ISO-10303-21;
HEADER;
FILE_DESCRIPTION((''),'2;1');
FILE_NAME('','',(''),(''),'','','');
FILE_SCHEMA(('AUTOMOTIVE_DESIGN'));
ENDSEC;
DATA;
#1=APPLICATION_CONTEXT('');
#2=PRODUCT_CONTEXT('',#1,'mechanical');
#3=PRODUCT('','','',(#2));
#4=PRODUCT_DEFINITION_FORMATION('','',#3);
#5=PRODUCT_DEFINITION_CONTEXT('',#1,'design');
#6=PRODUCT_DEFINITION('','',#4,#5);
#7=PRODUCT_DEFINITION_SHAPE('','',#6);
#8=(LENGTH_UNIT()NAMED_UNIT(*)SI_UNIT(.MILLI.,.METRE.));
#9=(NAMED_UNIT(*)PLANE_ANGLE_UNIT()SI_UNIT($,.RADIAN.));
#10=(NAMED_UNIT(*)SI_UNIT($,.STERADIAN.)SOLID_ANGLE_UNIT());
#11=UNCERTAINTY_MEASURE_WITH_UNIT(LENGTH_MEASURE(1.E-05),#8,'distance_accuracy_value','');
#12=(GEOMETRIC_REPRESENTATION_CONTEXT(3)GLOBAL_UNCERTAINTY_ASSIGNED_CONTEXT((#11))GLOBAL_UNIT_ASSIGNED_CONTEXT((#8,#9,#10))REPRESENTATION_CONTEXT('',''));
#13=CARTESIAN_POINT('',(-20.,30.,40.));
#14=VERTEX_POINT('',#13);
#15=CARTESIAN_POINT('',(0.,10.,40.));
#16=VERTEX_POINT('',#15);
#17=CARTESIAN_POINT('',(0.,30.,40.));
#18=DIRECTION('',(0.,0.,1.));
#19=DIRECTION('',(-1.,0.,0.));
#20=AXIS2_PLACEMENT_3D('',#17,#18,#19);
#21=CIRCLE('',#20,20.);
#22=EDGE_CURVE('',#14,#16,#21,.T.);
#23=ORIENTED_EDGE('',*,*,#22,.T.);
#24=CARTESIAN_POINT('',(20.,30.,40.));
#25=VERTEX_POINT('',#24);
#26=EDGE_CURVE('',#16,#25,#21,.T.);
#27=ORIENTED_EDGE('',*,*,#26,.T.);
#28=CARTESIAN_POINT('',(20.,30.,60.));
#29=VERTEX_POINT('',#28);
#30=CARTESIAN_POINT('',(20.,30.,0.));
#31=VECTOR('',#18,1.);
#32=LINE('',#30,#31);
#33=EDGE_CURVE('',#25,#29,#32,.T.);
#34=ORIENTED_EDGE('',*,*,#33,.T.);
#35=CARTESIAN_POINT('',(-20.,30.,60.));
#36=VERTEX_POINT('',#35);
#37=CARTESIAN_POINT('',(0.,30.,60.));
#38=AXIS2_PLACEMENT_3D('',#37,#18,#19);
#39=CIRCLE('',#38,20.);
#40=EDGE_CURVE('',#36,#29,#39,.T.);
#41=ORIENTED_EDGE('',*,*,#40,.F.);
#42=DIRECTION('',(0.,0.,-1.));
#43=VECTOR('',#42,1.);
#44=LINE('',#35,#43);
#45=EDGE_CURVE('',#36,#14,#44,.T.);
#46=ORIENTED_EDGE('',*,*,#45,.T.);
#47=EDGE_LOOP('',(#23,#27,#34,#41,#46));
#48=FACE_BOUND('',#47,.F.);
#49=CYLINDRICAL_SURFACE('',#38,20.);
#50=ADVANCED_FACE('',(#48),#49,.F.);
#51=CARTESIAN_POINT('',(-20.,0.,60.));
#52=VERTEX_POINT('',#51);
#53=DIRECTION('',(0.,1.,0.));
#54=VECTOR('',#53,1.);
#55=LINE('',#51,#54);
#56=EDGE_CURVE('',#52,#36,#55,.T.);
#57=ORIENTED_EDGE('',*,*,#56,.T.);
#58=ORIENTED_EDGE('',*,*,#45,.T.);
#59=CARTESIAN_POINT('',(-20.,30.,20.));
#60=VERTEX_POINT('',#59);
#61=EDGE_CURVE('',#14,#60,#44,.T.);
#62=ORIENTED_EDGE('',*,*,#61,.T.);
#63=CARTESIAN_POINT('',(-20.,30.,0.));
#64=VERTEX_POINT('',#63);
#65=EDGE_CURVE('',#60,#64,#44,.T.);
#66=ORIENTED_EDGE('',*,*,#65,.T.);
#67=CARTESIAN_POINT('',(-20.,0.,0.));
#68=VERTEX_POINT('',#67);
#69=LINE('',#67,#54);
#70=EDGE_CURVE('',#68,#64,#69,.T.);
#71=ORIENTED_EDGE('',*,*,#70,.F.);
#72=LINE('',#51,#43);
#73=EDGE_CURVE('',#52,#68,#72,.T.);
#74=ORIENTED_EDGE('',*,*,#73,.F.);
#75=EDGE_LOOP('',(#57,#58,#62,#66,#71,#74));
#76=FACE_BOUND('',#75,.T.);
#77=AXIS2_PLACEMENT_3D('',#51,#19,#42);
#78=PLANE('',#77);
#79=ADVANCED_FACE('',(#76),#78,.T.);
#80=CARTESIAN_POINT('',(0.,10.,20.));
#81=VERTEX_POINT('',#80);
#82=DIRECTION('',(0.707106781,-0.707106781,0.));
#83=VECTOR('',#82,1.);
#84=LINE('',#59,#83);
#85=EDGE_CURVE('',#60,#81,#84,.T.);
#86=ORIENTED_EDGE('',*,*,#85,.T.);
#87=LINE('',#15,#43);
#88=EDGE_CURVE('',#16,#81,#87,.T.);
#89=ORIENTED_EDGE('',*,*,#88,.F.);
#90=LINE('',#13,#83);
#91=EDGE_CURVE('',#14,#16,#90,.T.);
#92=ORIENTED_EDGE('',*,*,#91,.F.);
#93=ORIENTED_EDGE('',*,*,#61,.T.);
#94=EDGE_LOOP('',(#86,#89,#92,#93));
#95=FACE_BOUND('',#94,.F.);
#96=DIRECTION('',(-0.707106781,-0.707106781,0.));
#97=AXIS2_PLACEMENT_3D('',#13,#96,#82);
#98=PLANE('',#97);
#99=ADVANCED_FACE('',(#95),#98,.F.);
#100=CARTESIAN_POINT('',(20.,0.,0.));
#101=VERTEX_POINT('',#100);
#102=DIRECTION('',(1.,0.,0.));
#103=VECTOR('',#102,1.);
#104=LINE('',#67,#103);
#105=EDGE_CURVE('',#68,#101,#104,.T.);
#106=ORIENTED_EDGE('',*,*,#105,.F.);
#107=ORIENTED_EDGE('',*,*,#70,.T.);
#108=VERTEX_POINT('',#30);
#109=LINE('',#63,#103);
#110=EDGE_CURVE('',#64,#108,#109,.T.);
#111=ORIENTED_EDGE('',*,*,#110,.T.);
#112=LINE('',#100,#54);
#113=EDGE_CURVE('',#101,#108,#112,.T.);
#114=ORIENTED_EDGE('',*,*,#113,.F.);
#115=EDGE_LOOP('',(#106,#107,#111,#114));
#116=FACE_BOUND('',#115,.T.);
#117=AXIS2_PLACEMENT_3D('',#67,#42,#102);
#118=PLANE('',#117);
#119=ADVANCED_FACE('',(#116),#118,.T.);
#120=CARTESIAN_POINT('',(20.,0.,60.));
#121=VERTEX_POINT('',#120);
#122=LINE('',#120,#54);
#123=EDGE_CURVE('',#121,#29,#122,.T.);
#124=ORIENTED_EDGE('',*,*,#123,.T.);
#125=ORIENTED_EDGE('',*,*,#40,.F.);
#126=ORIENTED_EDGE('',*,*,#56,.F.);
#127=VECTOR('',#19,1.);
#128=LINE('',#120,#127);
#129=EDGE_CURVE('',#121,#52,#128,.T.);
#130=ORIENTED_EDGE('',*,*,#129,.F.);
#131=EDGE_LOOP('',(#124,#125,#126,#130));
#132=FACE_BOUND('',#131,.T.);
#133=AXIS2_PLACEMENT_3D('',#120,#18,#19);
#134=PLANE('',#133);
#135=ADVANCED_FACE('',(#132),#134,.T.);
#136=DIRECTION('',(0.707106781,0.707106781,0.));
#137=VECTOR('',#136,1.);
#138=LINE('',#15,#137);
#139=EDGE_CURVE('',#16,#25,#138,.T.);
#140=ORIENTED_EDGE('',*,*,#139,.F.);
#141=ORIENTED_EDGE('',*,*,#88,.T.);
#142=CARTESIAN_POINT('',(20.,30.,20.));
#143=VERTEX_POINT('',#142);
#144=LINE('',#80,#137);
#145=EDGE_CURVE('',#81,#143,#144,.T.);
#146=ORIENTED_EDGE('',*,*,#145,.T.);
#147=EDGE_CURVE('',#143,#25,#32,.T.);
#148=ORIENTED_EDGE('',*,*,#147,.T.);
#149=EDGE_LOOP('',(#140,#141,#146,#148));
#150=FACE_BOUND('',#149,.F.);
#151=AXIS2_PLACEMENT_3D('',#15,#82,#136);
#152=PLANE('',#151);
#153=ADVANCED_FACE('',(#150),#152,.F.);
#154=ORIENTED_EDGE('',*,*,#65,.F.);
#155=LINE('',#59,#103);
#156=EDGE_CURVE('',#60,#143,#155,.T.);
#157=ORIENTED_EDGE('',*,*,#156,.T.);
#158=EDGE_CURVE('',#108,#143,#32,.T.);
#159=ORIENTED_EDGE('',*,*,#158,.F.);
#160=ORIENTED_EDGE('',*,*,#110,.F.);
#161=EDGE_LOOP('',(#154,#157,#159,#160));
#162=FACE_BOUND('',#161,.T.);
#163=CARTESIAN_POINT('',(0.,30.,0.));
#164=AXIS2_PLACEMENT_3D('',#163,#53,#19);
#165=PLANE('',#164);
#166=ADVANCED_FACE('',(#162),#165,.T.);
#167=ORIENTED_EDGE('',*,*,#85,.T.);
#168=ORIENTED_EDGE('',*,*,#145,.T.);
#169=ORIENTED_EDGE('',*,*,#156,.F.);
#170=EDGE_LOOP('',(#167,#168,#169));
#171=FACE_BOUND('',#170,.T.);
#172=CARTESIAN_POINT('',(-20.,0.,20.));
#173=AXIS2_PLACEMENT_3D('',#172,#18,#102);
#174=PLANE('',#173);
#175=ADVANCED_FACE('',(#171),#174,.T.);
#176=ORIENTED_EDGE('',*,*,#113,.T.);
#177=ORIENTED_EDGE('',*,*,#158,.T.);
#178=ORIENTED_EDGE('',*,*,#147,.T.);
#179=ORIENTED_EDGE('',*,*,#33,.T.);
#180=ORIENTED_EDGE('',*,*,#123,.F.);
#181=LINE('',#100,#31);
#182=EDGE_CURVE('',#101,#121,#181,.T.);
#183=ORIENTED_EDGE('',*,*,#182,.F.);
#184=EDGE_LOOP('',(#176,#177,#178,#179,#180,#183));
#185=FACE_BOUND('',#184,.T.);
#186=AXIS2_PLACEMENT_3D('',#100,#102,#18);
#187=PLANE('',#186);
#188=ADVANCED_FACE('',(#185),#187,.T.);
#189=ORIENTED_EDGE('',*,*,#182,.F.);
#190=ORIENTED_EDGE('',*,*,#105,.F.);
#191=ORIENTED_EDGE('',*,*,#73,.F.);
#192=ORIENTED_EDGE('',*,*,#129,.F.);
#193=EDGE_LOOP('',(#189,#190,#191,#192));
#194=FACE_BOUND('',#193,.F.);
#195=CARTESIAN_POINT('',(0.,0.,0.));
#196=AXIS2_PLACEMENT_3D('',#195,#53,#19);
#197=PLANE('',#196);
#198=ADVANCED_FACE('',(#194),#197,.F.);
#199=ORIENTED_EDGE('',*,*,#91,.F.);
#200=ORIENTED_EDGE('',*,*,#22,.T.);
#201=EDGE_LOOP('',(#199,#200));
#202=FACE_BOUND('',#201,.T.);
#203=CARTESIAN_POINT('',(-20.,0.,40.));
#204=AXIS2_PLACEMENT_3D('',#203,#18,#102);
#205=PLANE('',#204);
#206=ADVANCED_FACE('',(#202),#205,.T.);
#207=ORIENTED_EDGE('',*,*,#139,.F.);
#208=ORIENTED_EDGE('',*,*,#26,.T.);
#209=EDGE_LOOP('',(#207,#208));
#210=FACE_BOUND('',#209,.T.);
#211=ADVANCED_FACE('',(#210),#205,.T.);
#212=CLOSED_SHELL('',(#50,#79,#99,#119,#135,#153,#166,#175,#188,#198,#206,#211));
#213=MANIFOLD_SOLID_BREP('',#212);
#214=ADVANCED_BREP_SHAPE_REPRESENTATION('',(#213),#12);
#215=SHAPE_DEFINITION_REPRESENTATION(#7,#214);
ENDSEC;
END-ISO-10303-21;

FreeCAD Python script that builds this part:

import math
import FreeCAD as App
import Part
import Sketcher
Q = App.Units.Quantity


def add_polygon(sketch, points):
    """Adds a closed chain of lines whose ends are joined by coincident constraints."""
    first, n = sketch.GeometryCount, len(points)
    for a, b in zip(points, points[1:] + points[:1]):
        sketch.addGeometry(Part.LineSegment(App.Vector(*a, 0), App.Vector(*b, 0)), False)
    for i in range(n):
        sketch.addConstraint(Sketcher.Constraint("Coincident", first + i, 2, first + (i + 1) % n, 1))

doc = App.newDocument("Part")
body = doc.addObject("PartDesign::Body", "Body")

# Sketch on XZ plane
sketch1 = body.newObject("Sketcher::SketchObject", "Sketch")
sketch1.AttachmentSupport = (doc.getObject("XZ_Plane"), [""])
sketch1.MapMode = "FlatFace"
add_polygon(sketch1, [(20, 0), (-20, 0), (-20, 60), (20, 60)])  # lines 0-3
sketch1.addConstraint(Sketcher.Constraint("Horizontal", 0))
sketch1.addConstraint(Sketcher.Constraint("Vertical", 1))
sketch1.addConstraint(Sketcher.Constraint("Horizontal", 2))
sketch1.addConstraint(Sketcher.Constraint("Vertical", 3))
sketch1.addConstraint(Sketcher.Constraint("Symmetric", 0, 2, 3, 2, -1, 1))
sketch1.addConstraint(Sketcher.Constraint("DistanceX", 0, 2, 0, 1, Q("40 mm")))
sketch1.addConstraint(Sketcher.Constraint("DistanceY", 1, 1, 1, 2, Q("60 mm")))
pad1 = body.newObject("PartDesign::Pad", "Pad")
pad1.Profile = sketch1
pad1.Length = 30
pad1.Reversed = True

# Sketch on XY plane
sketch2 = body.newObject("Sketcher::SketchObject", "Sketch001")
sketch2.AttachmentSupport = (doc.getObject("XY_Plane"), [""])
sketch2.MapMode = "FlatFace"
sketch2.AttachmentOffset = App.Placement(App.Vector(0, 0, 60), App.Rotation())
sketch2.addGeometry(Part.LineSegment(App.Vector(20, 30, 0), App.Vector(-20, 30, 0)), False)
sketch2.addGeometry(Part.ArcOfCircle(Part.Circle(App.Vector(0, 30, 0), App.Vector(0, 0, 1), 20), math.radians(180), math.radians(360)), False)
sketch2.addConstraint(Sketcher.Constraint("Coincident", 0, 1, 1, 2))
sketch2.addConstraint(Sketcher.Constraint("Coincident", 1, 1, 0, 2))
sketch2.addConstraint(Sketcher.Constraint("Horizontal", 0))
sketch2.addConstraint(Sketcher.Constraint("PointOnObject", 1, 3, -2))
sketch2.addConstraint(Sketcher.Constraint("Horizontal", 1, 3, 0, 1))
sketch2.addConstraint(Sketcher.Constraint("Radius", 1, Q("20 mm")))
sketch2.addConstraint(Sketcher.Constraint("DistanceY", -1, 1, 1, 3, Q("30 mm")))
pocket1 = body.newObject("PartDesign::Pocket", "Pocket")
pocket1.Profile = sketch2
pocket1.Length = 20

# Sketch on XY plane
sketch3 = body.newObject("Sketcher::SketchObject", "Sketch002")
sketch3.AttachmentSupport = (doc.getObject("XY_Plane"), [""])
sketch3.MapMode = "FlatFace"
sketch3.AttachmentOffset = App.Placement(App.Vector(0, 0, 40), App.Rotation())
add_polygon(sketch3, [(20, 30), (-20, 30), (0, 10)])  # lines 0-2
sketch3.addConstraint(Sketcher.Constraint("Horizontal", 0))
sketch3.addConstraint(Sketcher.Constraint("PointOnObject", 1, 2, -2))
sketch3.addConstraint(Sketcher.Constraint("Perpendicular", 1, 2))
sketch3.addConstraint(Sketcher.Constraint("Equal", 1, 2))
sketch3.addConstraint(Sketcher.Constraint("DistanceX", 0, 2, 0, 1, Q("40 mm")))
sketch3.addConstraint(Sketcher.Constraint("DistanceY", -1, 1, 0, 2, Q("30 mm")))
pocket2 = body.newObject("PartDesign::Pocket", "Pocket001")
pocket2.Profile = sketch3
pocket2.Length = 20

doc.recompute()
